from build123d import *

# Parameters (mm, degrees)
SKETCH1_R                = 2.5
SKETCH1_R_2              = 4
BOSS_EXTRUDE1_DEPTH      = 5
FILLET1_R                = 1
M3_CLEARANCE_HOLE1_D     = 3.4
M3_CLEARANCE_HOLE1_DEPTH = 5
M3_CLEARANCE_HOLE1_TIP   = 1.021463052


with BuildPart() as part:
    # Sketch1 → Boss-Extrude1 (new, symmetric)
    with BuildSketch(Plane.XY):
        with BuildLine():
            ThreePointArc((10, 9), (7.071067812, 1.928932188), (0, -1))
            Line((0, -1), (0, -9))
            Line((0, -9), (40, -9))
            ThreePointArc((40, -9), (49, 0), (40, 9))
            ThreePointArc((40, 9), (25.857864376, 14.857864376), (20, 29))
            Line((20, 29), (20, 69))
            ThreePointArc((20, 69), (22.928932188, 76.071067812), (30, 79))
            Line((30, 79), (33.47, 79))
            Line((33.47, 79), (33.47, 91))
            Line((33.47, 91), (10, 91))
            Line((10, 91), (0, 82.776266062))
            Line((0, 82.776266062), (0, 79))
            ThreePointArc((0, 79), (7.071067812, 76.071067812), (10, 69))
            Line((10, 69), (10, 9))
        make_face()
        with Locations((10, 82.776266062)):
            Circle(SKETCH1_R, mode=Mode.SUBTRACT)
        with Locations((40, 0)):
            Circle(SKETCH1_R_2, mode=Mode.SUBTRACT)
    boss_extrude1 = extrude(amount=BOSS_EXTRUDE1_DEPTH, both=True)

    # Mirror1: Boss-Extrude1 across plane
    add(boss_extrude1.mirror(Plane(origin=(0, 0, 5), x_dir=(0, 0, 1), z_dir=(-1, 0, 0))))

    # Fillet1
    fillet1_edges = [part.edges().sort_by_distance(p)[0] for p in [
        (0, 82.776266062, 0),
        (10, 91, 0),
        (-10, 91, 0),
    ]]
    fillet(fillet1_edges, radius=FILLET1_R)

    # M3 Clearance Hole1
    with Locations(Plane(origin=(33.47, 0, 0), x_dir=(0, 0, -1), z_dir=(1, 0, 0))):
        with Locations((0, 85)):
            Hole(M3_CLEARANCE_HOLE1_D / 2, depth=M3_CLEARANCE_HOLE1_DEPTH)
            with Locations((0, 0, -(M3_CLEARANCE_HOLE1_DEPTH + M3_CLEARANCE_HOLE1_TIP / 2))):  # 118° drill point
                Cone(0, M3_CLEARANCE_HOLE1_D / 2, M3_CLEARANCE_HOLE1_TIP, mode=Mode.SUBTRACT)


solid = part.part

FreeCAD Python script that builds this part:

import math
import FreeCAD as App
import Part
import Sketcher
from FreeCAD import Vector
Q = App.Units.Quantity


def edges_at(feature, points):
    """Names of the edges that pass closest to the given points."""
    edges = feature.Shape.Edges
    near = lambda p: min(range(len(edges)), key=lambda i: edges[i].distToShape(Part.Vertex(*p))[0])
    return sorted({f"Edge{near(p) + 1}" for p in points})

doc = App.newDocument("Part")
body = doc.addObject("PartDesign::Body", "Body")

# Sketch on XY plane
sketch1 = body.newObject("Sketcher::SketchObject", "Sketch")
sketch1.AttachmentSupport = (doc.getObject("XY_Plane"), [""])
sketch1.MapMode = "FlatFace"
sketch1.addGeometry(Part.ArcOfCircle(Part.Circle(Vector(0, 9, 0), Vector(0, 0, 1), 10), math.radians(-90), math.radians(0)), False)
sketch1.addGeometry(Part.LineSegment(Vector(0, -1, 0), Vector(0, -9, 0)), False)
sketch1.addGeometry(Part.LineSegment(Vector(0, -9, 0), Vector(40, -9, 0)), False)
sketch1.addGeometry(Part.ArcOfCircle(Part.Circle(Vector(40, 0, 0), Vector(0, 0, 1), 9), math.radians(-90), math.radians(90)), False)
sketch1.addGeometry(Part.ArcOfCircle(Part.Circle(Vector(40, 29, 0), Vector(0, 0, 1), 20), math.radians(180), math.radians(270)), False)
sketch1.addGeometry(Part.LineSegment(Vector(20, 29, 0), Vector(20, 69, 0)), False)
sketch1.addGeometry(Part.ArcOfCircle(Part.Circle(Vector(30, 69, 0), Vector(0, 0, 1), 10), math.radians(90), math.radians(180)), False)
sketch1.addGeometry(Part.LineSegment(Vector(30, 79, 0), Vector(33.5, 79, 0)), False)
sketch1.addGeometry(Part.LineSegment(Vector(33.5, 79, 0), Vector(33.5, 91, 0)), False)
sketch1.addGeometry(Part.LineSegment(Vector(33.5, 91, 0), Vector(10, 91, 0)), False)
sketch1.addGeometry(Part.LineSegment(Vector(10, 91, 0), Vector(0, 82.8, 0)), False)
sketch1.addGeometry(Part.LineSegment(Vector(0, 82.8, 0), Vector(0, 79, 0)), False)
sketch1.addGeometry(Part.ArcOfCircle(Part.Circle(Vector(0, 69, 0), Vector(0, 0, 1), 10), math.radians(0), math.radians(90)), False)
sketch1.addGeometry(Part.LineSegment(Vector(10, 69, 0), Vector(10, 9, 0)), False)
sketch1.addGeometry(Part.Circle(Vector(40, 0, 0), Vector(0, 0, 1), 4), False)
sketch1.addGeometry(Part.Circle(Vector(10, 82.8, 0), Vector(0, 0, 1), 2.5), False)
sketch1.addConstraint(Sketcher.Constraint("Coincident", 0, 1, 1, 1))
sketch1.addConstraint(Sketcher.Constraint("Coincident", 1, 2, 2, 1))
sketch1.addConstraint(Sketcher.Constraint("Tangent", 2, 2, 3, 1))
sketch1.addConstraint(Sketcher.Constraint("Tangent", 3, 2, 4, 2))
sketch1.addConstraint(Sketcher.Constraint("Tangent", 4, 1, 5, 1))
sketch1.addConstraint(Sketcher.Constraint("Tangent", 5, 2, 6, 2))
sketch1.addConstraint(Sketcher.Constraint("Tangent", 6, 1, 7, 1))
sketch1.addConstraint(Sketcher.Constraint("Coincident", 7, 2, 8, 1))
sketch1.addConstraint(Sketcher.Constraint("Coincident", 8, 2, 9, 1))
sketch1.addConstraint(Sketcher.Constraint("Coincident", 9, 2, 10, 1))
sketch1.addConstraint(Sketcher.Constraint("Coincident", 10, 2, 11, 1))
sketch1.addConstraint(Sketcher.Constraint("Coincident", 11, 2, 12, 2))
sketch1.addConstraint(Sketcher.Constraint("Tangent", 12, 1, 13, 1))
sketch1.addConstraint(Sketcher.Constraint("Tangent", 13, 2, 0, 2))
sketch1.addConstraint(Sketcher.Constraint("Vertical", 1))
sketch1.addConstraint(Sketcher.Constraint("Horizontal", 2))
sketch1.addConstraint(Sketcher.Constraint("Vertical", 5))
sketch1.addConstraint(Sketcher.Constraint("Horizontal", 7))
sketch1.addConstraint(Sketcher.Constraint("Vertical", 8))
sketch1.addConstraint(Sketcher.Constraint("Horizontal", 9))
sketch1.addConstraint(Sketcher.Constraint("Vertical", 11))
sketch1.addConstraint(Sketcher.Constraint("Vertical", 13))
sketch1.addConstraint(Sketcher.Constraint("Coincident", 14, 3, 3, 3))
sketch1.addConstraint(Sketcher.Constraint("Equal", 0, 6))
sketch1.addConstraint(Sketcher.Constraint("Equal", 6, 12))
sketch1.addConstraint(Sketcher.Constraint("Symmetric", 2, 2, 3, 2, -1))
sketch1.addConstraint(Sketcher.Constraint("PointOnObject", 0, 3, -2))
sketch1.addConstraint(Sketcher.Constraint("PointOnObject", 0, 1, -2))
sketch1.addConstraint(Sketcher.Constraint("PointOnObject", 10, 2, -2))
sketch1.addConstraint(Sketcher.Constraint("Horizontal", 6, 3, 12, 3))
sketch1.addConstraint(Sketcher.Constraint("Horizontal", 0, 3, 3, 2))
sketch1.addConstraint(Sketcher.Constraint("Horizontal", 15, 3, 10, 2))
sketch1.addConstraint(Sketcher.Constraint("Vertical", 15, 3, 9, 2))
sketch1.addConstraint(Sketcher.Constraint("Vertical", 9, 2, 12, 1))
sketch1.addConstraint(Sketcher.Constraint("Equal", 2, 5))
sketch1.addConstraint(Sketcher.Constraint("Diameter", 14, Q("8 mm")))
sketch1.addConstraint(Sketcher.Constraint("Diameter", 15, Q("5 mm")))
sketch1.addConstraint(Sketcher.Constraint("Radius", 0, Q("10 mm")))
sketch1.addConstraint(Sketcher.Constraint("Radius", 3, Q("9 mm")))
sketch1.addConstraint(Sketcher.Constraint("Radius", 4, Q("20 mm")))
sketch1.addConstraint(Sketcher.Constraint("DistanceX", 2, 1, 2, 2, Q("40 mm")))
sketch1.addConstraint(Sketcher.Constraint("DistanceY", 8, 1, 8, 2, Q("12 mm")))
sketch1.addConstraint(Sketcher.Constraint("DistanceX", 7, 1, 7, 2, Q("3.47 mm")))
sketch1.addConstraint(Sketcher.Constraint("DistanceY", 11, 2, 11, 1, Q("3.776266 mm")))
pad1 = body.newObject("PartDesign::Pad", "Pad")
pad1.Profile = sketch1
pad1.Length = 10
pad1.Midplane = True
doc.recompute()

mirrored = body.newObject("PartDesign::Mirrored", "Mirrored")
mirrored.Originals = [pad1]
mirrored.MirrorPlane = (doc.getObject("YZ_Plane"), [""])
body.Tip = mirrored
doc.recompute()

fillet = body.newObject("PartDesign::Fillet", "Fillet")
fillet.Base = (mirrored, edges_at(mirrored, [(0, 82.776, 0), (10, 91, 0), (-10, 91, 0)]))
fillet.Radius = 1

# Sketch on YZ plane
sketch2 = body.newObject("Sketcher::SketchObject", "Sketch001")
sketch2.AttachmentSupport = (doc.getObject("YZ_Plane"), [""])
sketch2.MapMode = "FlatFace"
sketch2.AttachmentOffset = App.Placement(Vector(0, 0, 33.47), App.Rotation())
sketch2.addGeometry(Part.Circle(Vector(85, 0, 0), Vector(0, 0, 1), 1.7), False)
sketch2.addConstraint(Sketcher.Constraint("PointOnObject", 0, 3, -1))
sketch2.addConstraint(Sketcher.Constraint("Diameter", 0, Q("3.4 mm")))
sketch2.addConstraint(Sketcher.Constraint("DistanceX", -1, 1, 0, 3, Q("85 mm")))
doc.recompute()
hole = body.newObject("PartDesign::Hole", "Hole")
hole.Profile = sketch2
hole.ThreadType = "None"
hole.Diameter = 3.4
hole.DepthType = "Dimension"
hole.Depth = 5
hole.DrillPoint = "Angled"
hole.DrillPointAngle = 118

doc.recompute()
